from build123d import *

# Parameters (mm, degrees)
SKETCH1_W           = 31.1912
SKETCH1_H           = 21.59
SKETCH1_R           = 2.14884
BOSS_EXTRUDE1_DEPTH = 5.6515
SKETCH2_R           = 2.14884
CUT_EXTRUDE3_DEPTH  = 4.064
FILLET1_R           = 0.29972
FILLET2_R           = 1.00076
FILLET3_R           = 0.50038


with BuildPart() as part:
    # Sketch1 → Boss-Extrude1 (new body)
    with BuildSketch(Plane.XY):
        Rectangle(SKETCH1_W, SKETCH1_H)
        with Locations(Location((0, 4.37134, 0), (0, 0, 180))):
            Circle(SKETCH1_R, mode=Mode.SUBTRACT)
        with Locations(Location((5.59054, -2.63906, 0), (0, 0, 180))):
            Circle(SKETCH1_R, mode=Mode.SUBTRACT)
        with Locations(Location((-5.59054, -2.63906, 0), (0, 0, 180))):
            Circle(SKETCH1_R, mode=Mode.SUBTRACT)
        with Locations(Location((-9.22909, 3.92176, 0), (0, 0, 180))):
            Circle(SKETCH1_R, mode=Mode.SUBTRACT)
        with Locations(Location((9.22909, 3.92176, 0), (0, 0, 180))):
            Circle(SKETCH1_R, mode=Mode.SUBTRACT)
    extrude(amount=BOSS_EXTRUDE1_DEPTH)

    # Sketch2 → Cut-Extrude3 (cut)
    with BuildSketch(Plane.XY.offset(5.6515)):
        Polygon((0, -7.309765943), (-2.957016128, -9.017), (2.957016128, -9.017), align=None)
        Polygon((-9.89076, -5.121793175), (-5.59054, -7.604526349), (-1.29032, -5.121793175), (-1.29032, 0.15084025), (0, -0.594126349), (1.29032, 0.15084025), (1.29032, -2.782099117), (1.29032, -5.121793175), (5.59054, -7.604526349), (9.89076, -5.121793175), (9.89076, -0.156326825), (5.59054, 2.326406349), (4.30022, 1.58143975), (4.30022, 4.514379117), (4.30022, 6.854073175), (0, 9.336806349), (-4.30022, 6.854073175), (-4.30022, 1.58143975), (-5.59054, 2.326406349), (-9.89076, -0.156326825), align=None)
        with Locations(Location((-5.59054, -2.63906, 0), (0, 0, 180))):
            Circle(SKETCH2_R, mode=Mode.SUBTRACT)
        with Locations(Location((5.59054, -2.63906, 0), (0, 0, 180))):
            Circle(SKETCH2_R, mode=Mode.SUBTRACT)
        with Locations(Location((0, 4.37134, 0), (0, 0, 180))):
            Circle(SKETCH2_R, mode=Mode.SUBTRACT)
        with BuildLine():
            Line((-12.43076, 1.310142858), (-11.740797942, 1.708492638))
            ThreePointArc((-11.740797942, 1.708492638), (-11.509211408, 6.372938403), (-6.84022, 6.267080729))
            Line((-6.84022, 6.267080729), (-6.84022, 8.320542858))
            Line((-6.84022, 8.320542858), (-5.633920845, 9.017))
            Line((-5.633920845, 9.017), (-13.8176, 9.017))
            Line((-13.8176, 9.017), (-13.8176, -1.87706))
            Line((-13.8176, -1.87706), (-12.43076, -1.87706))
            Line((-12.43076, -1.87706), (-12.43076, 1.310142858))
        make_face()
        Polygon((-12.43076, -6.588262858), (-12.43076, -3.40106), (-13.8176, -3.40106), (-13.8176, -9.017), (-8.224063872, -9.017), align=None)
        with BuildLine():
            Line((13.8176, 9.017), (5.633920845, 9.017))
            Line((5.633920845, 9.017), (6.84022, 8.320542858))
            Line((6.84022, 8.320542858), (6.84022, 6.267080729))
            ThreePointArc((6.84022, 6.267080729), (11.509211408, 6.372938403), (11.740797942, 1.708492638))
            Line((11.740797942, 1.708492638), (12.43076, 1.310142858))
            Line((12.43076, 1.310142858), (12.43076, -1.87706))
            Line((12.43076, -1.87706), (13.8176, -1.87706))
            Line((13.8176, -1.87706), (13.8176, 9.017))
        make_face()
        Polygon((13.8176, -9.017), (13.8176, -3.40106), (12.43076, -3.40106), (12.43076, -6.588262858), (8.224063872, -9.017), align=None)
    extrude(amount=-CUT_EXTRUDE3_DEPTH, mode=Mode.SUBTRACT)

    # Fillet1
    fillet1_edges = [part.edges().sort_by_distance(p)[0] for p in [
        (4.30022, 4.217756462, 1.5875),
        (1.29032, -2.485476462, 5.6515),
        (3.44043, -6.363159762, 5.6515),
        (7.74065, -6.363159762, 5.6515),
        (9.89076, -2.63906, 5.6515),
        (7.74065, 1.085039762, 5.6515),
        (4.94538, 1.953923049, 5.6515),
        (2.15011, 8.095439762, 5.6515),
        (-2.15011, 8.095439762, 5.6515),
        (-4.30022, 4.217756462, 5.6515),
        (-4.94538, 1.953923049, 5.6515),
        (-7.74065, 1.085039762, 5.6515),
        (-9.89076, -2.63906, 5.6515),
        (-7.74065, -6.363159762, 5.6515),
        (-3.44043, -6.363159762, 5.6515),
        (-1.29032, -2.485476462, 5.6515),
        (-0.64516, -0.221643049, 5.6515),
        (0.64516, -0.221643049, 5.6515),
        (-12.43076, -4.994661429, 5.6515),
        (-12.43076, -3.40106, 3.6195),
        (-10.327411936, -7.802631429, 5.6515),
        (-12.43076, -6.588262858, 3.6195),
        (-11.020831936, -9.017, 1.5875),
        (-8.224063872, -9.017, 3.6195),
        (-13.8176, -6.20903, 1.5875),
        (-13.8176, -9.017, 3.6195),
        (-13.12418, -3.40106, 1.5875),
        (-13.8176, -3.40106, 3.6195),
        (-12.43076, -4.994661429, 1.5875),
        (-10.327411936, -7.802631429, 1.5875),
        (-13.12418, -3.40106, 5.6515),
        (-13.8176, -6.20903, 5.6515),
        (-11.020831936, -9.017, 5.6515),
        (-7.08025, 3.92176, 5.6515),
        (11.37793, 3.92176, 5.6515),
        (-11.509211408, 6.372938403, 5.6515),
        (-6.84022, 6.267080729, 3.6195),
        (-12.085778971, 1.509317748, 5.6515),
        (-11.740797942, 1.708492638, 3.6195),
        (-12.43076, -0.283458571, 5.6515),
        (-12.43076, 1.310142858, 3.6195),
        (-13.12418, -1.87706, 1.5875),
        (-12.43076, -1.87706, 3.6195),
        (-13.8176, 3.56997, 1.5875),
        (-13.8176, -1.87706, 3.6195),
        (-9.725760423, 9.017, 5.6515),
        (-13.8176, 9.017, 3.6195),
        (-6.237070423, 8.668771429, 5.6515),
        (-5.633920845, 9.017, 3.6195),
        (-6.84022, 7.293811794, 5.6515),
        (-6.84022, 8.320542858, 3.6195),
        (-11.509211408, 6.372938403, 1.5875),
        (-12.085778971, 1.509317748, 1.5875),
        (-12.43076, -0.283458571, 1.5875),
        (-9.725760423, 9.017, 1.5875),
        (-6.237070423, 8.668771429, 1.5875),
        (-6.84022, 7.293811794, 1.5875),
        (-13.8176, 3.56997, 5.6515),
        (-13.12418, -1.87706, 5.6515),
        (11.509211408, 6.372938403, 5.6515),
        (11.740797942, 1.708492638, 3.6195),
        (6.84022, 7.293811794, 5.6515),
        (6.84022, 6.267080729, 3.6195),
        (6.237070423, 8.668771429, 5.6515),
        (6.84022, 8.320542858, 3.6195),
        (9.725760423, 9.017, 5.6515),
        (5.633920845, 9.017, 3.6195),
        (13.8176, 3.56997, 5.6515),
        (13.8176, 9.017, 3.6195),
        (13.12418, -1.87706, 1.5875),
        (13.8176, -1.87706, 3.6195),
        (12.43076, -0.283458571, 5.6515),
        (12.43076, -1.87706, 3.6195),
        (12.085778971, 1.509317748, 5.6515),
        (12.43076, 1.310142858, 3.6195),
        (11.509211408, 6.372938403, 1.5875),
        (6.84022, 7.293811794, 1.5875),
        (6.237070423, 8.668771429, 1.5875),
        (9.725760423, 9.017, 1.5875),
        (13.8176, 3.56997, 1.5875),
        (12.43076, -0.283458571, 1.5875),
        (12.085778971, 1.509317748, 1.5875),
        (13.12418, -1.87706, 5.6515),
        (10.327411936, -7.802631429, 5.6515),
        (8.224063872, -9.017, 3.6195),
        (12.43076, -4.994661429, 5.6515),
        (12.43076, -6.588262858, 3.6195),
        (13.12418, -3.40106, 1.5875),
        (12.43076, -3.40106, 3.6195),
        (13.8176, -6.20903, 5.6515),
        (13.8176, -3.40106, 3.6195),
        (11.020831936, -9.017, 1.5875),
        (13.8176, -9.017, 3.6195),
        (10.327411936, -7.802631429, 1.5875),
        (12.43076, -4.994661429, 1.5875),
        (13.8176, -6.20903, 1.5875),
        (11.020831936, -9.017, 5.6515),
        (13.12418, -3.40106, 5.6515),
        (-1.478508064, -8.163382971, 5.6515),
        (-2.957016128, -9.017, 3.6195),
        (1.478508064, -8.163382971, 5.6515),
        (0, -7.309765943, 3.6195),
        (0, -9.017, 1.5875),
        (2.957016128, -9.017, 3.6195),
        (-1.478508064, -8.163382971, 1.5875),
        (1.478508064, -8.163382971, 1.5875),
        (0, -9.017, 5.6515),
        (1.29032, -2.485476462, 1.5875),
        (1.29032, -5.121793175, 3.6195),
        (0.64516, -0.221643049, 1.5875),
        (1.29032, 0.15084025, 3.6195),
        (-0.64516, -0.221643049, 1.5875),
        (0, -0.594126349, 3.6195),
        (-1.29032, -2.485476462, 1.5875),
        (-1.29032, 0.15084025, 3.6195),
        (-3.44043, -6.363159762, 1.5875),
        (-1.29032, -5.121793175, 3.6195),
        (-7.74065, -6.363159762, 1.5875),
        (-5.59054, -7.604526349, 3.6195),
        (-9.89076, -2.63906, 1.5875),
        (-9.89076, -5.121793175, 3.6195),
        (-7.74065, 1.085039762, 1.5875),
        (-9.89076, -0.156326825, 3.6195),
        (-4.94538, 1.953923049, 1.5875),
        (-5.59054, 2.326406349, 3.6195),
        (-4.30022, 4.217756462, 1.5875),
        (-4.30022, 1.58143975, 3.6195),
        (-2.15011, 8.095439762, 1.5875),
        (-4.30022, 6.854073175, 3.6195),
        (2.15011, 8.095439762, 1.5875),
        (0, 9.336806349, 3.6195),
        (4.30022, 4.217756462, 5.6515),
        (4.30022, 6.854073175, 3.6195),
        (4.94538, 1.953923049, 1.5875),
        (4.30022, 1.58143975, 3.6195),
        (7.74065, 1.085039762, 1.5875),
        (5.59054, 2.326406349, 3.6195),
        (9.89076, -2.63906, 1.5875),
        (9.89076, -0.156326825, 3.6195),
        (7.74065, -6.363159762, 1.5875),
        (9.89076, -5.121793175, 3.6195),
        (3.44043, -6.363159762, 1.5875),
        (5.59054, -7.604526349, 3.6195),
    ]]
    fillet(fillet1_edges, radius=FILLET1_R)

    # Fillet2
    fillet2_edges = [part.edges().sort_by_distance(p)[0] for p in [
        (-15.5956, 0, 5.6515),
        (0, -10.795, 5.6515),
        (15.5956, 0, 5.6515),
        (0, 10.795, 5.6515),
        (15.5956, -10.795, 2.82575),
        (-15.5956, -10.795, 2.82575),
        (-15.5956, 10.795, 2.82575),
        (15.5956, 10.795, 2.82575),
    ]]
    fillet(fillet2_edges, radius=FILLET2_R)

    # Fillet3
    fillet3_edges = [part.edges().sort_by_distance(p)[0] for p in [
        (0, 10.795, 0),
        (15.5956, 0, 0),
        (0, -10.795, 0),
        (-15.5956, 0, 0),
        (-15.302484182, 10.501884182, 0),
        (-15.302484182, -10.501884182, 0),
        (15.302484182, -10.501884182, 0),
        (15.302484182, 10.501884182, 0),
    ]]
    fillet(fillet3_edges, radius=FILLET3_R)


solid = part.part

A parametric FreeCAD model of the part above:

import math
import FreeCAD as App
import Part
import Sketcher
from FreeCAD import Vector
Q = App.Units.Quantity


def edges_at(feature, points):
    """Names of the edges that pass closest to the given points."""
    edges = feature.Shape.Edges
    near = lambda p: min(range(len(edges)), key=lambda i: edges[i].distToShape(Part.Vertex(*p))[0])
    return sorted({f"Edge{near(p) + 1}" for p in points})

doc = App.newDocument("Part")
params = doc.addObject("Spreadsheet::Sheet", "Params")
for row, (alias, value) in enumerate([
    ("sketch1_height", "0.85 in"),
    ("sketch1_width", "1.228 in"),
    ("pad1_length", "0.2225 in"),
    ("pocket1_length", "0.16 in"),
    ("fillet_radius", "0.0118 in"),
    ("fillet2_radius", "0.0394 in"),
    ("fillet3_radius", "0.0197 in"),
], start=1):
    params.set(f"A{row}", alias)
    params.set(f"B{row}", "=" + value)
    params.setAlias(f"B{row}", alias)

body = doc.addObject("PartDesign::Body", "Body")

sketch1 = doc.addObject("Sketcher::SketchObject", "Sketch")
body.addObject(sketch1)
sketch1.AttachmentSupport = (doc.XY_Plane, [""])
sketch1.MapMode = "FlatFace"
sketch1.addGeometry([
    Part.LineSegment(Vector(-15.6, 10.8, 0), Vector(-15.6, -10.8, 0)),
    Part.LineSegment(Vector(-15.6, -10.8, 0), Vector(15.6, -10.8, 0)),
    Part.LineSegment(Vector(15.6, -10.8, 0), Vector(15.6, 10.8, 0)),
    Part.LineSegment(Vector(15.6, 10.8, 0), Vector(-15.6, 10.8, 0)),
    Part.Circle(Vector(-5.6, -2.6, 0), Vector(0, 0, 1), 2.1),
    Part.Circle(Vector(5.6, -2.6, 0), Vector(0, 0, 1), 2.1),
    Part.Circle(Vector(-9.2, 3.9, 0), Vector(0, 0, 1), 2.1),
    Part.Circle(Vector(0, 4.4, 0), Vector(0, 0, 1), 2.1),
    Part.Circle(Vector(9.2, 3.9, 0), Vector(0, 0, 1), 2.1),
], False)
sketch1.addConstraint([
    Sketcher.Constraint("Coincident", 0, 2, 1, 1),
    Sketcher.Constraint("Coincident", 1, 2, 2, 1),
    Sketcher.Constraint("Coincident", 2, 2, 3, 1),
    Sketcher.Constraint("Coincident", 3, 2, 0, 1),
    Sketcher.Constraint("Vertical", 0),
    Sketcher.Constraint("Horizontal", 1),
    Sketcher.Constraint("Vertical", 2),
    Sketcher.Constraint("Horizontal", 3),
    Sketcher.Constraint("Equal", 4, 5),
    Sketcher.Constraint("Equal", 5, 6),
    Sketcher.Constraint("Equal", 6, 7),
    Sketcher.Constraint("Equal", 7, 8),
    Sketcher.Constraint("Symmetric", 0, 2, 2, 2, -1, 1),
    Sketcher.Constraint("Symmetric", 4, 3, 5, 3, -2),
    Sketcher.Constraint("Symmetric", 6, 3, 8, 3, -2),
    Sketcher.Constraint("PointOnObject", 7, 3, -2),
    Sketcher.Constraint("Diameter", 4, Q("0.1692 in")),
    Sketcher.Constraint("DistanceY", 0, 2, 0, 1, Q("0.85 in")),
    Sketcher.Constraint("DistanceX", 1, 1, 1, 2, Q("1.228 in")),
    Sketcher.Constraint("DistanceY", 4, 3, 7, 3, Q("0.276 in")),
    Sketcher.Constraint("DistanceX", 4, 3, -1, 1, Q("0.2201 in")),
    Sketcher.Constraint("DistanceY", 4, 3, -1, 1, Q("0.1039 in")),
    Sketcher.Constraint("DistanceY", -1, 1, 6, 3, Q("0.1544 in")),
    Sketcher.Constraint("DistanceX", 6, 3, 8, 3, Q("0.7267 in")),
])
sketch1.setExpression("Constraints[17]", "Params.sketch1_height")
sketch1.setExpression("Constraints[18]", "Params.sketch1_width")
pad1 = doc.addObject("PartDesign::Pad", "Pad")
body.addObject(pad1)
pad1.Profile = sketch1
pad1.setExpression("Length", "Params.pad1_length")

sketch2 = doc.addObject("Sketcher::SketchObject", "Sketch001")
body.addObject(sketch2)
sketch2.AttachmentSupport = (doc.XY_Plane, [""])
sketch2.MapMode = "FlatFace"
sketch2.AttachmentOffset = App.Placement(Vector(0, 0, 0.2225 * 25.4), App.Rotation())
sketch2.addGeometry([
    Part.LineSegment(Vector(0, -7.3, 0), Vector(-3, -9, 0)),
    Part.LineSegment(Vector(-3, -9, 0), Vector(3, -9, 0)),
    Part.LineSegment(Vector(3, -9, 0), Vector(0, -7.3, 0)),
    Part.LineSegment(Vector(-9.9, -5.1, 0), Vector(-5.6, -7.6, 0)),
    Part.LineSegment(Vector(-5.6, -7.6, 0), Vector(-1.3, -5.1, 0)),
    Part.LineSegment(Vector(-1.3, -5.1, 0), Vector(-1.3, 0.2, 0)),
    Part.LineSegment(Vector(-1.3, 0.2, 0), Vector(0, -0.6, 0)),
    Part.LineSegment(Vector(0, -0.6, 0), Vector(1.3, 0.2, 0)),
    Part.LineSegment(Vector(1.3, 0.2, 0), Vector(1.3, -5.1, 0)),
    Part.LineSegment(Vector(1.3, -5.1, 0), Vector(5.6, -7.6, 0)),
    Part.LineSegment(Vector(5.6, -7.6, 0), Vector(9.9, -5.1, 0)),
    Part.LineSegment(Vector(9.9, -5.1, 0), Vector(9.9, -0.2, 0)),
    Part.LineSegment(Vector(9.9, -0.2, 0), Vector(5.6, 2.3, 0)),
    Part.LineSegment(Vector(5.6, 2.3, 0), Vector(4.3, 1.6, 0)),
    Part.LineSegment(Vector(4.3, 1.6, 0), Vector(4.3, 6.9, 0)),
    Part.LineSegment(Vector(4.3, 6.9, 0), Vector(0, 9.3, 0)),
    Part.LineSegment(Vector(0, 9.3, 0), Vector(-4.3, 6.9, 0)),
    Part.LineSegment(Vector(-4.3, 6.9, 0), Vector(-4.3, 1.6, 0)),
    Part.LineSegment(Vector(-4.3, 1.6, 0), Vector(-5.6, 2.3, 0)),
    Part.LineSegment(Vector(-5.6, 2.3, 0), Vector(-9.9, -0.2, 0)),
    Part.LineSegment(Vector(-9.9, -0.2, 0), Vector(-9.9, -5.1, 0)),
    Part.Circle(Vector(-5.6, -2.6, 0), Vector(0, 0, 1), 2.1),
    Part.Circle(Vector(5.6, -2.6, 0), Vector(0, 0, 1), 2.1),
    Part.Circle(Vector(0, 4.4, 0), Vector(0, 0, 1), 2.1),
    Part.LineSegment(Vector(-12.4, 1.3, 0), Vector(-11.7, 1.7, 0)),
    Part.ArcOfCircle(Part.Circle(Vector(-9.2, 3.9, 0), Vector(0, 0, 1), 3.3), math.radians(44), math.radians(221)),
    Part.LineSegment(Vector(-6.8, 6.3, 0), Vector(-6.8, 8.3, 0)),
    Part.LineSegment(Vector(-6.8, 8.3, 0), Vector(-5.6, 9, 0)),
    Part.LineSegment(Vector(-5.6, 9, 0), Vector(-13.8, 9, 0)),
    Part.LineSegment(Vector(-13.8, 9, 0), Vector(-13.8, -1.9, 0)),
    Part.LineSegment(Vector(-13.8, -1.9, 0), Vector(-12.4, -1.9, 0)),
    Part.LineSegment(Vector(-12.4, -1.9, 0), Vector(-12.4, 1.3, 0)),
    Part.LineSegment(Vector(-12.4, -6.6, 0), Vector(-12.4, -3.4, 0)),
    Part.LineSegment(Vector(-12.4, -3.4, 0), Vector(-13.8, -3.4, 0)),
    Part.LineSegment(Vector(-13.8, -3.4, 0), Vector(-13.8, -9, 0)),
    Part.LineSegment(Vector(-13.8, -9, 0), Vector(-8.2, -9, 0)),
    Part.LineSegment(Vector(-8.2, -9, 0), Vector(-12.4, -6.6, 0)),
    Part.LineSegment(Vector(13.8, 9, 0), Vector(5.6, 9, 0)),
    Part.LineSegment(Vector(5.6, 9, 0), Vector(6.8, 8.3, 0)),
    Part.LineSegment(Vector(6.8, 8.3, 0), Vector(6.8, 6.3, 0)),
    Part.ArcOfCircle(Part.Circle(Vector(9.2, 3.9, 0), Vector(0, 0, 1), 3.3), math.radians(-41), math.radians(136)),
    Part.LineSegment(Vector(11.7, 1.7, 0), Vector(12.4, 1.3, 0)),
    Part.LineSegment(Vector(12.4, 1.3, 0), Vector(12.4, -1.9, 0)),
    Part.LineSegment(Vector(12.4, -1.9, 0), Vector(13.8, -1.9, 0)),
    Part.LineSegment(Vector(13.8, -1.9, 0), Vector(13.8, 9, 0)),
    Part.LineSegment(Vector(13.8, -9, 0), Vector(13.8, -3.4, 0)),
    Part.LineSegment(Vector(13.8, -3.4, 0), Vector(12.4, -3.4, 0)),
    Part.LineSegment(Vector(12.4, -3.4, 0), Vector(12.4, -6.6, 0)),
    Part.LineSegment(Vector(12.4, -6.6, 0), Vector(8.2, -9, 0)),
    Part.LineSegment(Vector(8.2, -9, 0), Vector(13.8, -9, 0)),
], False)
sketch2.addConstraint([
    Sketcher.Constraint("Coincident", 0, 2, 1, 1),
    Sketcher.Constraint("Coincident", 1, 2, 2, 1),
    Sketcher.Constraint("Coincident", 2, 2, 0, 1),
    Sketcher.Constraint("Coincident", 3, 2, 4, 1),
    Sketcher.Constraint("Coincident", 4, 2, 5, 1),
    Sketcher.Constraint("Coincident", 5, 2, 6, 1),
    Sketcher.Constraint("Coincident", 6, 2, 7, 1),
    Sketcher.Constraint("Coincident", 7, 2, 8, 1),
    Sketcher.Constraint("Coincident", 8, 2, 9, 1),
    Sketcher.Constraint("Coincident", 9, 2, 10, 1),
    Sketcher.Constraint("Coincident", 10, 2, 11, 1),
    Sketcher.Constraint("Coincident", 11, 2, 12, 1),
    Sketcher.Constraint("Coincident", 12, 2, 13, 1),
    Sketcher.Constraint("Coincident", 13, 2, 14, 1),
    Sketcher.Constraint("Coincident", 14, 2, 15, 1),
    Sketcher.Constraint("Coincident", 15, 2, 16, 1),
    Sketcher.Constraint("Coincident", 16, 2, 17, 1),
    Sketcher.Constraint("Coincident", 17, 2, 18, 1),
    Sketcher.Constraint("Coincident", 18, 2, 19, 1),
    Sketcher.Constraint("Coincident", 19, 2, 20, 1),
    Sketcher.Constraint("Coincident", 20, 2, 3, 1),
    Sketcher.Constraint("Coincident", 24, 2, 25, 2),
    Sketcher.Constraint("Coincident", 25, 1, 26, 1),
    Sketcher.Constraint("Coincident", 26, 2, 27, 1),
    Sketcher.Constraint("Coincident", 27, 2, 28, 1),
    Sketcher.Constraint("Coincident", 28, 2, 29, 1),
    Sketcher.Constraint("Coincident", 29, 2, 30, 1),
    Sketcher.Constraint("Coincident", 30, 2, 31, 1),
    Sketcher.Constraint("Coincident", 31, 2, 24, 1),
    Sketcher.Constraint("Coincident", 32, 2, 33, 1),
    Sketcher.Constraint("Coincident", 33, 2, 34, 1),
    Sketcher.Constraint("Coincident", 34, 2, 35, 1),
    Sketcher.Constraint("Coincident", 35, 2, 36, 1),
    Sketcher.Constraint("Coincident", 36, 2, 32, 1),
    Sketcher.Constraint("Coincident", 37, 2, 38, 1),
    Sketcher.Constraint("Coincident", 38, 2, 39, 1),
    Sketcher.Constraint("Coincident", 39, 2, 40, 2),
    Sketcher.Constraint("Coincident", 40, 1, 41, 1),
    Sketcher.Constraint("Coincident", 41, 2, 42, 1),
    Sketcher.Constraint("Coincident", 42, 2, 43, 1),
    Sketcher.Constraint("Coincident", 43, 2, 44, 1),
    Sketcher.Constraint("Coincident", 44, 2, 37, 1),
    Sketcher.Constraint("Coincident", 45, 2, 46, 1),
    Sketcher.Constraint("Coincident", 46, 2, 47, 1),
    Sketcher.Constraint("Coincident", 47, 2, 48, 1),
    Sketcher.Constraint("Coincident", 48, 2, 49, 1),
    Sketcher.Constraint("Coincident", 49, 2, 45, 1),
    Sketcher.Constraint("Horizontal", 1),
    Sketcher.Constraint("Vertical", 5),
    Sketcher.Constraint("Vertical", 8),
    Sketcher.Constraint("Vertical", 11),
    Sketcher.Constraint("Vertical", 14),
    Sketcher.Constraint("Vertical", 17),
    Sketcher.Constraint("Vertical", 20),
    Sketcher.Constraint("Vertical", 26),
    Sketcher.Constraint("Horizontal", 28),
    Sketcher.Constraint("Vertical", 29),
    Sketcher.Constraint("Horizontal", 30),
    Sketcher.Constraint("Vertical", 31),
    Sketcher.Constraint("Vertical", 32),
    Sketcher.Constraint("Horizontal", 33),
    Sketcher.Constraint("Vertical", 34),
    Sketcher.Constraint("Horizontal", 35),
    Sketcher.Constraint("Horizontal", 37),
    Sketcher.Constraint("Vertical", 39),
    Sketcher.Constraint("Vertical", 42),
    Sketcher.Constraint("Horizontal", 43),
    Sketcher.Constraint("Vertical", 44),
    Sketcher.Constraint("Vertical", 45),
    Sketcher.Constraint("Horizontal", 46),
    Sketcher.Constraint("Vertical", 47),
    Sketcher.Constraint("Horizontal", 49),
    Sketcher.Constraint("Equal", 21, 22),
    Sketcher.Constraint("Equal", 22, 23),
    Sketcher.Constraint("Equal", 25, 40),
    Sketcher.Constraint("Symmetric", 34, 2, 44, 2, -1, 1),
    Sketcher.Constraint("Symmetric", 28, 2, 49, 2, -1, 1),
    Sketcher.Constraint("Symmetric", 21, 3, 22, 3, -2),
    Sketcher.Constraint("Symmetric", 25, 3, 40, 3, -2),
    Sketcher.Constraint("Symmetric", 5, 2, 7, 2, -2),
    Sketcher.Constraint("Symmetric", 3, 2, 9, 2, -2),
    Sketcher.Constraint("Symmetric", 14, 2, 16, 2, -2),
    Sketcher.Constraint("Symmetric", 12, 2, 18, 2, -2),
    Sketcher.Constraint("Symmetric", 11, 2, 19, 2, -2),
    Sketcher.Constraint("Symmetric", 27, 2, 37, 2, -2),
    Sketcher.Constraint("Symmetric", 26, 2, 38, 2, -2),
    Sketcher.Constraint("Symmetric", 31, 2, 41, 2, -2),
    Sketcher.Constraint("Symmetric", 29, 2, 43, 2, -2),
    Sketcher.Constraint("Symmetric", 32, 2, 46, 2, -2),
    Sketcher.Constraint("PointOnObject", 23, 3, -2),
    Sketcher.Constraint("PointOnObject", 2, 2, -2),
    Sketcher.Constraint("PointOnObject", 6, 2, -2),
    Sketcher.Constraint("PointOnObject", 15, 2, -2),
    Sketcher.Constraint("Parallel", 2, 3),
    Sketcher.Constraint("Parallel", 0, 4),
    Sketcher.Constraint("Parallel", 3, 6),
    Sketcher.Constraint("Parallel", 4, 7),
    Sketcher.Constraint("Parallel", 6, 9),
    Sketcher.Constraint("Parallel", 7, 10),
    Sketcher.Constraint("Parallel", 9, 12),
    Sketcher.Constraint("Parallel", 10, 13),
    Sketcher.Constraint("Parallel", 12, 15),
    Sketcher.Constraint("Parallel", 15, 18),
    Sketcher.Constraint("Parallel", 19, 24),
    Sketcher.Constraint("Parallel", 24, 27),
    Sketcher.Constraint("Parallel", 18, 36),
    Sketcher.Constraint("Parallel", 38, 41),
    Sketcher.Constraint("Parallel", 27, 48),
    Sketcher.Constraint("Horizontal", 8, 2, 10, 2),
    Sketcher.Constraint("Horizontal", 1, 2, 34, 2),
    Sketcher.Constraint("Horizontal", 36, 2, 47, 2),
    Sketcher.Constraint("Vertical", 21, 3, 3, 2),
    Sketcher.Constraint("Vertical", 9, 2, 12, 2),
    Sketcher.Constraint("Vertical", 31, 2, 32, 2),
    Sketcher.Constraint("Equal", 8, 14),
    Sketcher.Constraint("Equal", 31, 32),
    Sketcher.Constraint("Equal", 7, 13),
    Sketcher.Constraint("Angle", 0, Q("-150 deg")),
    Sketcher.Constraint("Diameter", 21, Q("0.1692 in")),
    Sketcher.Constraint("Radius", 25, Q("0.1318 in")),
    Sketcher.Constraint("DistanceX", 25, 1, 16, 2, Q("0.1 in")),
    Sketcher.Constraint("DistanceX", 30, 2, 19, 2, Q("0.1 in")),
    Sketcher.Constraint("DistanceY", 21, 3, 29, 2, Q("0.03 in")),
    Sketcher.Constraint("DistanceY", 32, 2, 30, 2, Q("0.06 in")),
    Sketcher.Constraint("DistanceX", 30, 1, 30, 2, Q("0.0546 in")),
    Sketcher.Constraint("DistanceY", 29, 2, 29, 1, Q("0.4289 in")),
    Sketcher.Constraint("DistanceY", 34, 2, 34, 1, Q("0.2211 in")),
    Sketcher.Constraint("DistanceX", 28, 2, -1, 1, Q("0.544 in")),
    Sketcher.Constraint("DistanceY", 21, 3, 23, 3, Q("0.276 in")),
    Sketcher.Constraint("DistanceY", 12, 2, 15, 2, Q("0.276 in")),
    Sketcher.Constraint("DistanceX", 21, 3, -1, 1, Q("0.2201 in")),
    Sketcher.Constraint("DistanceY", -1, 1, 25, 3, Q("0.1544 in")),
    Sketcher.Constraint("DistanceX", 25, 3, 40, 3, Q("0.7267 in")),
    Sketcher.Constraint("Distance", 24, 0.7967),
    Sketcher.Constraint("DistanceX", 28, 2, 28, 1, 8.183679),
    Sketcher.Constraint("DistanceY", 5, 2, 23, 3, 4.2205),
    Sketcher.Constraint("DistanceY", 9, 2, 11, 2, 7.4482),
    Sketcher.Constraint("Distance", 0, 3.414468),
])
pocket1 = doc.addObject("PartDesign::Pocket", "Pocket")
body.addObject(pocket1)
pocket1.Profile = sketch2
pocket1.setExpression("Length", "Params.pocket1_length")
doc.recompute()

fillet = doc.addObject("PartDesign::Fillet", "Fillet")
body.addObject(fillet)
fillet.Base = (pocket1, edges_at(pocket1, [
    (4.3, 4.218, 1.587),
    (1.29, -2.485, 5.652),
    (3.44, -6.363, 5.652),
    (7.741, -6.363, 5.652),
    (9.891, -2.639, 5.652),
    (7.741, 1.085, 5.652),
    (4.945, 1.954, 5.652),
    (2.15, 8.095, 5.652),
    (-2.15, 8.095, 5.652),
    (-4.3, 4.218, 5.652),
    (-4.945, 1.954, 5.652),
    (-7.741, 1.085, 5.652),
    (-9.891, -2.639, 5.652),
    (-7.741, -6.363, 5.652),
    (-3.44, -6.363, 5.652),
    (-1.29, -2.485, 5.652),
    (-0.645, -0.222, 5.652),
    (0.645, -0.222, 5.652),
    (-12.431, -4.995, 5.652),
    (-12.431, -3.401, 3.619),
    (-10.327, -7.803, 5.652),
    (-12.431, -6.588, 3.619),
    (-11.021, -9.017, 1.587),
    (-8.224, -9.017, 3.619),
    (-13.818, -6.209, 1.587),
    (-13.818, -9.017, 3.619),
    (-13.124, -3.401, 1.587),
    (-13.818, -3.401, 3.619),
    (-12.431, -4.995, 1.587),
    (-10.327, -7.803, 1.587),
    (-13.124, -3.401, 5.652),
    (-13.818, -6.209, 5.652),
    (-11.021, -9.017, 5.652),
    (-7.08, 3.922, 5.652),
    (11.378, 3.922, 5.652),
    (-11.509, 6.373, 5.652),
    (-6.84, 6.267, 3.619),
    (-12.086, 1.509, 5.652),
    (-11.741, 1.708, 3.619),
    (-12.431, -0.283, 5.652),
    (-12.431, 1.31, 3.619),
    (-13.124, -1.877, 1.587),
    (-12.431, -1.877, 3.619),
    (-13.818, 3.57, 1.587),
    (-13.818, -1.877, 3.619),
    (-9.726, 9.017, 5.652),
    (-13.818, 9.017, 3.619),
    (-6.237, 8.669, 5.652),
    (-5.634, 9.017, 3.619),
    (-6.84, 7.294, 5.652),
    (-6.84, 8.321, 3.619),
    (-11.509, 6.373, 1.587),
    (-12.086, 1.509, 1.587),
    (-12.431, -0.283, 1.587),
    (-9.726, 9.017, 1.587),
    (-6.237, 8.669, 1.587),
    (-6.84, 7.294, 1.587),
    (-13.818, 3.57, 5.652),
    (-13.124, -1.877, 5.652),
    (11.509, 6.373, 5.652),
    (11.741, 1.708, 3.619),
    (6.84, 7.294, 5.652),
    (6.84, 6.267, 3.619),
    (6.237, 8.669, 5.652),
    (6.84, 8.321, 3.619),
    (9.726, 9.017, 5.652),
    (5.634, 9.017, 3.619),
    (13.818, 3.57, 5.652),
    (13.818, 9.017, 3.619),
    (13.124, -1.877, 1.587),
    (13.818, -1.877, 3.619),
    (12.431, -0.283, 5.652),
    (12.431, -1.877, 3.619),
    (12.086, 1.509, 5.652),
    (12.431, 1.31, 3.619),
    (11.509, 6.373, 1.587),
    (6.84, 7.294, 1.587),
    (6.237, 8.669, 1.587),
    (9.726, 9.017, 1.587),
    (13.818, 3.57, 1.587),
    (12.431, -0.283, 1.587),
    (12.086, 1.509, 1.587),
    (13.124, -1.877, 5.652),
    (10.327, -7.803, 5.652),
    (8.224, -9.017, 3.619),
    (12.431, -4.995, 5.652),
    (12.431, -6.588, 3.619),
    (13.124, -3.401, 1.587),
    (12.431, -3.401, 3.619),
    (13.818, -6.209, 5.652),
    (13.818, -3.401, 3.619),
    (11.021, -9.017, 1.587),
    (13.818, -9.017, 3.619),
    (10.327, -7.803, 1.587),
    (12.431, -4.995, 1.587),
    (13.818, -6.209, 1.587),
    (11.021, -9.017, 5.652),
    (13.124, -3.401, 5.652),
    (-1.479, -8.163, 5.652),
    (-2.957, -9.017, 3.619),
    (1.479, -8.163, 5.652),
    (0, -7.31, 3.619),
    (0, -9.017, 1.587),
    (2.957, -9.017, 3.619),
    (-1.479, -8.163, 1.587),
    (1.479, -8.163, 1.587),
    (0, -9.017, 5.652),
    (1.29, -2.485, 1.587),
    (1.29, -5.122, 3.619),
    (0.645, -0.222, 1.587),
    (1.29, 0.151, 3.619),
    (-0.645, -0.222, 1.587),
    (0, -0.594, 3.619),
    (-1.29, -2.485, 1.587),
    (-1.29, 0.151, 3.619),
    (-3.44, -6.363, 1.587),
    (-1.29, -5.122, 3.619),
    (-7.741, -6.363, 1.587),
    (-5.591, -7.605, 3.619),
    (-9.891, -2.639, 1.587),
    (-9.891, -5.122, 3.619),
    (-7.741, 1.085, 1.587),
    (-9.891, -0.156, 3.619),
    (-4.945, 1.954, 1.587),
    (-5.591, 2.326, 3.619),
    (-4.3, 4.218, 1.587),
    (-4.3, 1.581, 3.619),
    (-2.15, 8.095, 1.587),
    (-4.3, 6.854, 3.619),
    (2.15, 8.095, 1.587),
    (0, 9.337, 3.619),
    (4.3, 4.218, 5.652),
    (4.3, 6.854, 3.619),
    (4.945, 1.954, 1.587),
    (4.3, 1.581, 3.619),
    (7.741, 1.085, 1.587),
    (5.591, 2.326, 3.619),
    (9.891, -2.639, 1.587),
    (9.891, -0.156, 3.619),
    (7.741, -6.363, 1.587),
    (9.891, -5.122, 3.619),
    (3.44, -6.363, 1.587),
    (5.591, -7.605, 3.619),
]))
fillet.setExpression("Radius", "Params.fillet_radius")
doc.recompute()

fillet2 = doc.addObject("PartDesign::Fillet", "Fillet001")
body.addObject(fillet2)
fillet2.Base = (fillet, edges_at(fillet, [
    (-15.596, 0, 5.652),
    (0, -10.795, 5.652),
    (15.596, 0, 5.652),
    (0, 10.795, 5.652),
    (15.596, -10.795, 2.826),
    (-15.596, -10.795, 2.826),
    (-15.596, 10.795, 2.826),
    (15.596, 10.795, 2.826),
]))
fillet2.setExpression("Radius", "Params.fillet2_radius")
doc.recompute()

fillet3 = doc.addObject("PartDesign::Fillet", "Fillet002")
body.addObject(fillet3)
fillet3.Base = (fillet2, edges_at(fillet2, [
    (0, 10.795, 0),
    (15.596, 0, 0),
    (0, -10.795, 0),
    (-15.596, 0, 0),
    (-15.302, 10.502, 0),
    (-15.302, -10.502, 0),
    (15.302, -10.502, 0),
    (15.302, 10.502, 0),
]))
fillet3.setExpression("Radius", "Params.fillet3_radius")

doc.recompute()
